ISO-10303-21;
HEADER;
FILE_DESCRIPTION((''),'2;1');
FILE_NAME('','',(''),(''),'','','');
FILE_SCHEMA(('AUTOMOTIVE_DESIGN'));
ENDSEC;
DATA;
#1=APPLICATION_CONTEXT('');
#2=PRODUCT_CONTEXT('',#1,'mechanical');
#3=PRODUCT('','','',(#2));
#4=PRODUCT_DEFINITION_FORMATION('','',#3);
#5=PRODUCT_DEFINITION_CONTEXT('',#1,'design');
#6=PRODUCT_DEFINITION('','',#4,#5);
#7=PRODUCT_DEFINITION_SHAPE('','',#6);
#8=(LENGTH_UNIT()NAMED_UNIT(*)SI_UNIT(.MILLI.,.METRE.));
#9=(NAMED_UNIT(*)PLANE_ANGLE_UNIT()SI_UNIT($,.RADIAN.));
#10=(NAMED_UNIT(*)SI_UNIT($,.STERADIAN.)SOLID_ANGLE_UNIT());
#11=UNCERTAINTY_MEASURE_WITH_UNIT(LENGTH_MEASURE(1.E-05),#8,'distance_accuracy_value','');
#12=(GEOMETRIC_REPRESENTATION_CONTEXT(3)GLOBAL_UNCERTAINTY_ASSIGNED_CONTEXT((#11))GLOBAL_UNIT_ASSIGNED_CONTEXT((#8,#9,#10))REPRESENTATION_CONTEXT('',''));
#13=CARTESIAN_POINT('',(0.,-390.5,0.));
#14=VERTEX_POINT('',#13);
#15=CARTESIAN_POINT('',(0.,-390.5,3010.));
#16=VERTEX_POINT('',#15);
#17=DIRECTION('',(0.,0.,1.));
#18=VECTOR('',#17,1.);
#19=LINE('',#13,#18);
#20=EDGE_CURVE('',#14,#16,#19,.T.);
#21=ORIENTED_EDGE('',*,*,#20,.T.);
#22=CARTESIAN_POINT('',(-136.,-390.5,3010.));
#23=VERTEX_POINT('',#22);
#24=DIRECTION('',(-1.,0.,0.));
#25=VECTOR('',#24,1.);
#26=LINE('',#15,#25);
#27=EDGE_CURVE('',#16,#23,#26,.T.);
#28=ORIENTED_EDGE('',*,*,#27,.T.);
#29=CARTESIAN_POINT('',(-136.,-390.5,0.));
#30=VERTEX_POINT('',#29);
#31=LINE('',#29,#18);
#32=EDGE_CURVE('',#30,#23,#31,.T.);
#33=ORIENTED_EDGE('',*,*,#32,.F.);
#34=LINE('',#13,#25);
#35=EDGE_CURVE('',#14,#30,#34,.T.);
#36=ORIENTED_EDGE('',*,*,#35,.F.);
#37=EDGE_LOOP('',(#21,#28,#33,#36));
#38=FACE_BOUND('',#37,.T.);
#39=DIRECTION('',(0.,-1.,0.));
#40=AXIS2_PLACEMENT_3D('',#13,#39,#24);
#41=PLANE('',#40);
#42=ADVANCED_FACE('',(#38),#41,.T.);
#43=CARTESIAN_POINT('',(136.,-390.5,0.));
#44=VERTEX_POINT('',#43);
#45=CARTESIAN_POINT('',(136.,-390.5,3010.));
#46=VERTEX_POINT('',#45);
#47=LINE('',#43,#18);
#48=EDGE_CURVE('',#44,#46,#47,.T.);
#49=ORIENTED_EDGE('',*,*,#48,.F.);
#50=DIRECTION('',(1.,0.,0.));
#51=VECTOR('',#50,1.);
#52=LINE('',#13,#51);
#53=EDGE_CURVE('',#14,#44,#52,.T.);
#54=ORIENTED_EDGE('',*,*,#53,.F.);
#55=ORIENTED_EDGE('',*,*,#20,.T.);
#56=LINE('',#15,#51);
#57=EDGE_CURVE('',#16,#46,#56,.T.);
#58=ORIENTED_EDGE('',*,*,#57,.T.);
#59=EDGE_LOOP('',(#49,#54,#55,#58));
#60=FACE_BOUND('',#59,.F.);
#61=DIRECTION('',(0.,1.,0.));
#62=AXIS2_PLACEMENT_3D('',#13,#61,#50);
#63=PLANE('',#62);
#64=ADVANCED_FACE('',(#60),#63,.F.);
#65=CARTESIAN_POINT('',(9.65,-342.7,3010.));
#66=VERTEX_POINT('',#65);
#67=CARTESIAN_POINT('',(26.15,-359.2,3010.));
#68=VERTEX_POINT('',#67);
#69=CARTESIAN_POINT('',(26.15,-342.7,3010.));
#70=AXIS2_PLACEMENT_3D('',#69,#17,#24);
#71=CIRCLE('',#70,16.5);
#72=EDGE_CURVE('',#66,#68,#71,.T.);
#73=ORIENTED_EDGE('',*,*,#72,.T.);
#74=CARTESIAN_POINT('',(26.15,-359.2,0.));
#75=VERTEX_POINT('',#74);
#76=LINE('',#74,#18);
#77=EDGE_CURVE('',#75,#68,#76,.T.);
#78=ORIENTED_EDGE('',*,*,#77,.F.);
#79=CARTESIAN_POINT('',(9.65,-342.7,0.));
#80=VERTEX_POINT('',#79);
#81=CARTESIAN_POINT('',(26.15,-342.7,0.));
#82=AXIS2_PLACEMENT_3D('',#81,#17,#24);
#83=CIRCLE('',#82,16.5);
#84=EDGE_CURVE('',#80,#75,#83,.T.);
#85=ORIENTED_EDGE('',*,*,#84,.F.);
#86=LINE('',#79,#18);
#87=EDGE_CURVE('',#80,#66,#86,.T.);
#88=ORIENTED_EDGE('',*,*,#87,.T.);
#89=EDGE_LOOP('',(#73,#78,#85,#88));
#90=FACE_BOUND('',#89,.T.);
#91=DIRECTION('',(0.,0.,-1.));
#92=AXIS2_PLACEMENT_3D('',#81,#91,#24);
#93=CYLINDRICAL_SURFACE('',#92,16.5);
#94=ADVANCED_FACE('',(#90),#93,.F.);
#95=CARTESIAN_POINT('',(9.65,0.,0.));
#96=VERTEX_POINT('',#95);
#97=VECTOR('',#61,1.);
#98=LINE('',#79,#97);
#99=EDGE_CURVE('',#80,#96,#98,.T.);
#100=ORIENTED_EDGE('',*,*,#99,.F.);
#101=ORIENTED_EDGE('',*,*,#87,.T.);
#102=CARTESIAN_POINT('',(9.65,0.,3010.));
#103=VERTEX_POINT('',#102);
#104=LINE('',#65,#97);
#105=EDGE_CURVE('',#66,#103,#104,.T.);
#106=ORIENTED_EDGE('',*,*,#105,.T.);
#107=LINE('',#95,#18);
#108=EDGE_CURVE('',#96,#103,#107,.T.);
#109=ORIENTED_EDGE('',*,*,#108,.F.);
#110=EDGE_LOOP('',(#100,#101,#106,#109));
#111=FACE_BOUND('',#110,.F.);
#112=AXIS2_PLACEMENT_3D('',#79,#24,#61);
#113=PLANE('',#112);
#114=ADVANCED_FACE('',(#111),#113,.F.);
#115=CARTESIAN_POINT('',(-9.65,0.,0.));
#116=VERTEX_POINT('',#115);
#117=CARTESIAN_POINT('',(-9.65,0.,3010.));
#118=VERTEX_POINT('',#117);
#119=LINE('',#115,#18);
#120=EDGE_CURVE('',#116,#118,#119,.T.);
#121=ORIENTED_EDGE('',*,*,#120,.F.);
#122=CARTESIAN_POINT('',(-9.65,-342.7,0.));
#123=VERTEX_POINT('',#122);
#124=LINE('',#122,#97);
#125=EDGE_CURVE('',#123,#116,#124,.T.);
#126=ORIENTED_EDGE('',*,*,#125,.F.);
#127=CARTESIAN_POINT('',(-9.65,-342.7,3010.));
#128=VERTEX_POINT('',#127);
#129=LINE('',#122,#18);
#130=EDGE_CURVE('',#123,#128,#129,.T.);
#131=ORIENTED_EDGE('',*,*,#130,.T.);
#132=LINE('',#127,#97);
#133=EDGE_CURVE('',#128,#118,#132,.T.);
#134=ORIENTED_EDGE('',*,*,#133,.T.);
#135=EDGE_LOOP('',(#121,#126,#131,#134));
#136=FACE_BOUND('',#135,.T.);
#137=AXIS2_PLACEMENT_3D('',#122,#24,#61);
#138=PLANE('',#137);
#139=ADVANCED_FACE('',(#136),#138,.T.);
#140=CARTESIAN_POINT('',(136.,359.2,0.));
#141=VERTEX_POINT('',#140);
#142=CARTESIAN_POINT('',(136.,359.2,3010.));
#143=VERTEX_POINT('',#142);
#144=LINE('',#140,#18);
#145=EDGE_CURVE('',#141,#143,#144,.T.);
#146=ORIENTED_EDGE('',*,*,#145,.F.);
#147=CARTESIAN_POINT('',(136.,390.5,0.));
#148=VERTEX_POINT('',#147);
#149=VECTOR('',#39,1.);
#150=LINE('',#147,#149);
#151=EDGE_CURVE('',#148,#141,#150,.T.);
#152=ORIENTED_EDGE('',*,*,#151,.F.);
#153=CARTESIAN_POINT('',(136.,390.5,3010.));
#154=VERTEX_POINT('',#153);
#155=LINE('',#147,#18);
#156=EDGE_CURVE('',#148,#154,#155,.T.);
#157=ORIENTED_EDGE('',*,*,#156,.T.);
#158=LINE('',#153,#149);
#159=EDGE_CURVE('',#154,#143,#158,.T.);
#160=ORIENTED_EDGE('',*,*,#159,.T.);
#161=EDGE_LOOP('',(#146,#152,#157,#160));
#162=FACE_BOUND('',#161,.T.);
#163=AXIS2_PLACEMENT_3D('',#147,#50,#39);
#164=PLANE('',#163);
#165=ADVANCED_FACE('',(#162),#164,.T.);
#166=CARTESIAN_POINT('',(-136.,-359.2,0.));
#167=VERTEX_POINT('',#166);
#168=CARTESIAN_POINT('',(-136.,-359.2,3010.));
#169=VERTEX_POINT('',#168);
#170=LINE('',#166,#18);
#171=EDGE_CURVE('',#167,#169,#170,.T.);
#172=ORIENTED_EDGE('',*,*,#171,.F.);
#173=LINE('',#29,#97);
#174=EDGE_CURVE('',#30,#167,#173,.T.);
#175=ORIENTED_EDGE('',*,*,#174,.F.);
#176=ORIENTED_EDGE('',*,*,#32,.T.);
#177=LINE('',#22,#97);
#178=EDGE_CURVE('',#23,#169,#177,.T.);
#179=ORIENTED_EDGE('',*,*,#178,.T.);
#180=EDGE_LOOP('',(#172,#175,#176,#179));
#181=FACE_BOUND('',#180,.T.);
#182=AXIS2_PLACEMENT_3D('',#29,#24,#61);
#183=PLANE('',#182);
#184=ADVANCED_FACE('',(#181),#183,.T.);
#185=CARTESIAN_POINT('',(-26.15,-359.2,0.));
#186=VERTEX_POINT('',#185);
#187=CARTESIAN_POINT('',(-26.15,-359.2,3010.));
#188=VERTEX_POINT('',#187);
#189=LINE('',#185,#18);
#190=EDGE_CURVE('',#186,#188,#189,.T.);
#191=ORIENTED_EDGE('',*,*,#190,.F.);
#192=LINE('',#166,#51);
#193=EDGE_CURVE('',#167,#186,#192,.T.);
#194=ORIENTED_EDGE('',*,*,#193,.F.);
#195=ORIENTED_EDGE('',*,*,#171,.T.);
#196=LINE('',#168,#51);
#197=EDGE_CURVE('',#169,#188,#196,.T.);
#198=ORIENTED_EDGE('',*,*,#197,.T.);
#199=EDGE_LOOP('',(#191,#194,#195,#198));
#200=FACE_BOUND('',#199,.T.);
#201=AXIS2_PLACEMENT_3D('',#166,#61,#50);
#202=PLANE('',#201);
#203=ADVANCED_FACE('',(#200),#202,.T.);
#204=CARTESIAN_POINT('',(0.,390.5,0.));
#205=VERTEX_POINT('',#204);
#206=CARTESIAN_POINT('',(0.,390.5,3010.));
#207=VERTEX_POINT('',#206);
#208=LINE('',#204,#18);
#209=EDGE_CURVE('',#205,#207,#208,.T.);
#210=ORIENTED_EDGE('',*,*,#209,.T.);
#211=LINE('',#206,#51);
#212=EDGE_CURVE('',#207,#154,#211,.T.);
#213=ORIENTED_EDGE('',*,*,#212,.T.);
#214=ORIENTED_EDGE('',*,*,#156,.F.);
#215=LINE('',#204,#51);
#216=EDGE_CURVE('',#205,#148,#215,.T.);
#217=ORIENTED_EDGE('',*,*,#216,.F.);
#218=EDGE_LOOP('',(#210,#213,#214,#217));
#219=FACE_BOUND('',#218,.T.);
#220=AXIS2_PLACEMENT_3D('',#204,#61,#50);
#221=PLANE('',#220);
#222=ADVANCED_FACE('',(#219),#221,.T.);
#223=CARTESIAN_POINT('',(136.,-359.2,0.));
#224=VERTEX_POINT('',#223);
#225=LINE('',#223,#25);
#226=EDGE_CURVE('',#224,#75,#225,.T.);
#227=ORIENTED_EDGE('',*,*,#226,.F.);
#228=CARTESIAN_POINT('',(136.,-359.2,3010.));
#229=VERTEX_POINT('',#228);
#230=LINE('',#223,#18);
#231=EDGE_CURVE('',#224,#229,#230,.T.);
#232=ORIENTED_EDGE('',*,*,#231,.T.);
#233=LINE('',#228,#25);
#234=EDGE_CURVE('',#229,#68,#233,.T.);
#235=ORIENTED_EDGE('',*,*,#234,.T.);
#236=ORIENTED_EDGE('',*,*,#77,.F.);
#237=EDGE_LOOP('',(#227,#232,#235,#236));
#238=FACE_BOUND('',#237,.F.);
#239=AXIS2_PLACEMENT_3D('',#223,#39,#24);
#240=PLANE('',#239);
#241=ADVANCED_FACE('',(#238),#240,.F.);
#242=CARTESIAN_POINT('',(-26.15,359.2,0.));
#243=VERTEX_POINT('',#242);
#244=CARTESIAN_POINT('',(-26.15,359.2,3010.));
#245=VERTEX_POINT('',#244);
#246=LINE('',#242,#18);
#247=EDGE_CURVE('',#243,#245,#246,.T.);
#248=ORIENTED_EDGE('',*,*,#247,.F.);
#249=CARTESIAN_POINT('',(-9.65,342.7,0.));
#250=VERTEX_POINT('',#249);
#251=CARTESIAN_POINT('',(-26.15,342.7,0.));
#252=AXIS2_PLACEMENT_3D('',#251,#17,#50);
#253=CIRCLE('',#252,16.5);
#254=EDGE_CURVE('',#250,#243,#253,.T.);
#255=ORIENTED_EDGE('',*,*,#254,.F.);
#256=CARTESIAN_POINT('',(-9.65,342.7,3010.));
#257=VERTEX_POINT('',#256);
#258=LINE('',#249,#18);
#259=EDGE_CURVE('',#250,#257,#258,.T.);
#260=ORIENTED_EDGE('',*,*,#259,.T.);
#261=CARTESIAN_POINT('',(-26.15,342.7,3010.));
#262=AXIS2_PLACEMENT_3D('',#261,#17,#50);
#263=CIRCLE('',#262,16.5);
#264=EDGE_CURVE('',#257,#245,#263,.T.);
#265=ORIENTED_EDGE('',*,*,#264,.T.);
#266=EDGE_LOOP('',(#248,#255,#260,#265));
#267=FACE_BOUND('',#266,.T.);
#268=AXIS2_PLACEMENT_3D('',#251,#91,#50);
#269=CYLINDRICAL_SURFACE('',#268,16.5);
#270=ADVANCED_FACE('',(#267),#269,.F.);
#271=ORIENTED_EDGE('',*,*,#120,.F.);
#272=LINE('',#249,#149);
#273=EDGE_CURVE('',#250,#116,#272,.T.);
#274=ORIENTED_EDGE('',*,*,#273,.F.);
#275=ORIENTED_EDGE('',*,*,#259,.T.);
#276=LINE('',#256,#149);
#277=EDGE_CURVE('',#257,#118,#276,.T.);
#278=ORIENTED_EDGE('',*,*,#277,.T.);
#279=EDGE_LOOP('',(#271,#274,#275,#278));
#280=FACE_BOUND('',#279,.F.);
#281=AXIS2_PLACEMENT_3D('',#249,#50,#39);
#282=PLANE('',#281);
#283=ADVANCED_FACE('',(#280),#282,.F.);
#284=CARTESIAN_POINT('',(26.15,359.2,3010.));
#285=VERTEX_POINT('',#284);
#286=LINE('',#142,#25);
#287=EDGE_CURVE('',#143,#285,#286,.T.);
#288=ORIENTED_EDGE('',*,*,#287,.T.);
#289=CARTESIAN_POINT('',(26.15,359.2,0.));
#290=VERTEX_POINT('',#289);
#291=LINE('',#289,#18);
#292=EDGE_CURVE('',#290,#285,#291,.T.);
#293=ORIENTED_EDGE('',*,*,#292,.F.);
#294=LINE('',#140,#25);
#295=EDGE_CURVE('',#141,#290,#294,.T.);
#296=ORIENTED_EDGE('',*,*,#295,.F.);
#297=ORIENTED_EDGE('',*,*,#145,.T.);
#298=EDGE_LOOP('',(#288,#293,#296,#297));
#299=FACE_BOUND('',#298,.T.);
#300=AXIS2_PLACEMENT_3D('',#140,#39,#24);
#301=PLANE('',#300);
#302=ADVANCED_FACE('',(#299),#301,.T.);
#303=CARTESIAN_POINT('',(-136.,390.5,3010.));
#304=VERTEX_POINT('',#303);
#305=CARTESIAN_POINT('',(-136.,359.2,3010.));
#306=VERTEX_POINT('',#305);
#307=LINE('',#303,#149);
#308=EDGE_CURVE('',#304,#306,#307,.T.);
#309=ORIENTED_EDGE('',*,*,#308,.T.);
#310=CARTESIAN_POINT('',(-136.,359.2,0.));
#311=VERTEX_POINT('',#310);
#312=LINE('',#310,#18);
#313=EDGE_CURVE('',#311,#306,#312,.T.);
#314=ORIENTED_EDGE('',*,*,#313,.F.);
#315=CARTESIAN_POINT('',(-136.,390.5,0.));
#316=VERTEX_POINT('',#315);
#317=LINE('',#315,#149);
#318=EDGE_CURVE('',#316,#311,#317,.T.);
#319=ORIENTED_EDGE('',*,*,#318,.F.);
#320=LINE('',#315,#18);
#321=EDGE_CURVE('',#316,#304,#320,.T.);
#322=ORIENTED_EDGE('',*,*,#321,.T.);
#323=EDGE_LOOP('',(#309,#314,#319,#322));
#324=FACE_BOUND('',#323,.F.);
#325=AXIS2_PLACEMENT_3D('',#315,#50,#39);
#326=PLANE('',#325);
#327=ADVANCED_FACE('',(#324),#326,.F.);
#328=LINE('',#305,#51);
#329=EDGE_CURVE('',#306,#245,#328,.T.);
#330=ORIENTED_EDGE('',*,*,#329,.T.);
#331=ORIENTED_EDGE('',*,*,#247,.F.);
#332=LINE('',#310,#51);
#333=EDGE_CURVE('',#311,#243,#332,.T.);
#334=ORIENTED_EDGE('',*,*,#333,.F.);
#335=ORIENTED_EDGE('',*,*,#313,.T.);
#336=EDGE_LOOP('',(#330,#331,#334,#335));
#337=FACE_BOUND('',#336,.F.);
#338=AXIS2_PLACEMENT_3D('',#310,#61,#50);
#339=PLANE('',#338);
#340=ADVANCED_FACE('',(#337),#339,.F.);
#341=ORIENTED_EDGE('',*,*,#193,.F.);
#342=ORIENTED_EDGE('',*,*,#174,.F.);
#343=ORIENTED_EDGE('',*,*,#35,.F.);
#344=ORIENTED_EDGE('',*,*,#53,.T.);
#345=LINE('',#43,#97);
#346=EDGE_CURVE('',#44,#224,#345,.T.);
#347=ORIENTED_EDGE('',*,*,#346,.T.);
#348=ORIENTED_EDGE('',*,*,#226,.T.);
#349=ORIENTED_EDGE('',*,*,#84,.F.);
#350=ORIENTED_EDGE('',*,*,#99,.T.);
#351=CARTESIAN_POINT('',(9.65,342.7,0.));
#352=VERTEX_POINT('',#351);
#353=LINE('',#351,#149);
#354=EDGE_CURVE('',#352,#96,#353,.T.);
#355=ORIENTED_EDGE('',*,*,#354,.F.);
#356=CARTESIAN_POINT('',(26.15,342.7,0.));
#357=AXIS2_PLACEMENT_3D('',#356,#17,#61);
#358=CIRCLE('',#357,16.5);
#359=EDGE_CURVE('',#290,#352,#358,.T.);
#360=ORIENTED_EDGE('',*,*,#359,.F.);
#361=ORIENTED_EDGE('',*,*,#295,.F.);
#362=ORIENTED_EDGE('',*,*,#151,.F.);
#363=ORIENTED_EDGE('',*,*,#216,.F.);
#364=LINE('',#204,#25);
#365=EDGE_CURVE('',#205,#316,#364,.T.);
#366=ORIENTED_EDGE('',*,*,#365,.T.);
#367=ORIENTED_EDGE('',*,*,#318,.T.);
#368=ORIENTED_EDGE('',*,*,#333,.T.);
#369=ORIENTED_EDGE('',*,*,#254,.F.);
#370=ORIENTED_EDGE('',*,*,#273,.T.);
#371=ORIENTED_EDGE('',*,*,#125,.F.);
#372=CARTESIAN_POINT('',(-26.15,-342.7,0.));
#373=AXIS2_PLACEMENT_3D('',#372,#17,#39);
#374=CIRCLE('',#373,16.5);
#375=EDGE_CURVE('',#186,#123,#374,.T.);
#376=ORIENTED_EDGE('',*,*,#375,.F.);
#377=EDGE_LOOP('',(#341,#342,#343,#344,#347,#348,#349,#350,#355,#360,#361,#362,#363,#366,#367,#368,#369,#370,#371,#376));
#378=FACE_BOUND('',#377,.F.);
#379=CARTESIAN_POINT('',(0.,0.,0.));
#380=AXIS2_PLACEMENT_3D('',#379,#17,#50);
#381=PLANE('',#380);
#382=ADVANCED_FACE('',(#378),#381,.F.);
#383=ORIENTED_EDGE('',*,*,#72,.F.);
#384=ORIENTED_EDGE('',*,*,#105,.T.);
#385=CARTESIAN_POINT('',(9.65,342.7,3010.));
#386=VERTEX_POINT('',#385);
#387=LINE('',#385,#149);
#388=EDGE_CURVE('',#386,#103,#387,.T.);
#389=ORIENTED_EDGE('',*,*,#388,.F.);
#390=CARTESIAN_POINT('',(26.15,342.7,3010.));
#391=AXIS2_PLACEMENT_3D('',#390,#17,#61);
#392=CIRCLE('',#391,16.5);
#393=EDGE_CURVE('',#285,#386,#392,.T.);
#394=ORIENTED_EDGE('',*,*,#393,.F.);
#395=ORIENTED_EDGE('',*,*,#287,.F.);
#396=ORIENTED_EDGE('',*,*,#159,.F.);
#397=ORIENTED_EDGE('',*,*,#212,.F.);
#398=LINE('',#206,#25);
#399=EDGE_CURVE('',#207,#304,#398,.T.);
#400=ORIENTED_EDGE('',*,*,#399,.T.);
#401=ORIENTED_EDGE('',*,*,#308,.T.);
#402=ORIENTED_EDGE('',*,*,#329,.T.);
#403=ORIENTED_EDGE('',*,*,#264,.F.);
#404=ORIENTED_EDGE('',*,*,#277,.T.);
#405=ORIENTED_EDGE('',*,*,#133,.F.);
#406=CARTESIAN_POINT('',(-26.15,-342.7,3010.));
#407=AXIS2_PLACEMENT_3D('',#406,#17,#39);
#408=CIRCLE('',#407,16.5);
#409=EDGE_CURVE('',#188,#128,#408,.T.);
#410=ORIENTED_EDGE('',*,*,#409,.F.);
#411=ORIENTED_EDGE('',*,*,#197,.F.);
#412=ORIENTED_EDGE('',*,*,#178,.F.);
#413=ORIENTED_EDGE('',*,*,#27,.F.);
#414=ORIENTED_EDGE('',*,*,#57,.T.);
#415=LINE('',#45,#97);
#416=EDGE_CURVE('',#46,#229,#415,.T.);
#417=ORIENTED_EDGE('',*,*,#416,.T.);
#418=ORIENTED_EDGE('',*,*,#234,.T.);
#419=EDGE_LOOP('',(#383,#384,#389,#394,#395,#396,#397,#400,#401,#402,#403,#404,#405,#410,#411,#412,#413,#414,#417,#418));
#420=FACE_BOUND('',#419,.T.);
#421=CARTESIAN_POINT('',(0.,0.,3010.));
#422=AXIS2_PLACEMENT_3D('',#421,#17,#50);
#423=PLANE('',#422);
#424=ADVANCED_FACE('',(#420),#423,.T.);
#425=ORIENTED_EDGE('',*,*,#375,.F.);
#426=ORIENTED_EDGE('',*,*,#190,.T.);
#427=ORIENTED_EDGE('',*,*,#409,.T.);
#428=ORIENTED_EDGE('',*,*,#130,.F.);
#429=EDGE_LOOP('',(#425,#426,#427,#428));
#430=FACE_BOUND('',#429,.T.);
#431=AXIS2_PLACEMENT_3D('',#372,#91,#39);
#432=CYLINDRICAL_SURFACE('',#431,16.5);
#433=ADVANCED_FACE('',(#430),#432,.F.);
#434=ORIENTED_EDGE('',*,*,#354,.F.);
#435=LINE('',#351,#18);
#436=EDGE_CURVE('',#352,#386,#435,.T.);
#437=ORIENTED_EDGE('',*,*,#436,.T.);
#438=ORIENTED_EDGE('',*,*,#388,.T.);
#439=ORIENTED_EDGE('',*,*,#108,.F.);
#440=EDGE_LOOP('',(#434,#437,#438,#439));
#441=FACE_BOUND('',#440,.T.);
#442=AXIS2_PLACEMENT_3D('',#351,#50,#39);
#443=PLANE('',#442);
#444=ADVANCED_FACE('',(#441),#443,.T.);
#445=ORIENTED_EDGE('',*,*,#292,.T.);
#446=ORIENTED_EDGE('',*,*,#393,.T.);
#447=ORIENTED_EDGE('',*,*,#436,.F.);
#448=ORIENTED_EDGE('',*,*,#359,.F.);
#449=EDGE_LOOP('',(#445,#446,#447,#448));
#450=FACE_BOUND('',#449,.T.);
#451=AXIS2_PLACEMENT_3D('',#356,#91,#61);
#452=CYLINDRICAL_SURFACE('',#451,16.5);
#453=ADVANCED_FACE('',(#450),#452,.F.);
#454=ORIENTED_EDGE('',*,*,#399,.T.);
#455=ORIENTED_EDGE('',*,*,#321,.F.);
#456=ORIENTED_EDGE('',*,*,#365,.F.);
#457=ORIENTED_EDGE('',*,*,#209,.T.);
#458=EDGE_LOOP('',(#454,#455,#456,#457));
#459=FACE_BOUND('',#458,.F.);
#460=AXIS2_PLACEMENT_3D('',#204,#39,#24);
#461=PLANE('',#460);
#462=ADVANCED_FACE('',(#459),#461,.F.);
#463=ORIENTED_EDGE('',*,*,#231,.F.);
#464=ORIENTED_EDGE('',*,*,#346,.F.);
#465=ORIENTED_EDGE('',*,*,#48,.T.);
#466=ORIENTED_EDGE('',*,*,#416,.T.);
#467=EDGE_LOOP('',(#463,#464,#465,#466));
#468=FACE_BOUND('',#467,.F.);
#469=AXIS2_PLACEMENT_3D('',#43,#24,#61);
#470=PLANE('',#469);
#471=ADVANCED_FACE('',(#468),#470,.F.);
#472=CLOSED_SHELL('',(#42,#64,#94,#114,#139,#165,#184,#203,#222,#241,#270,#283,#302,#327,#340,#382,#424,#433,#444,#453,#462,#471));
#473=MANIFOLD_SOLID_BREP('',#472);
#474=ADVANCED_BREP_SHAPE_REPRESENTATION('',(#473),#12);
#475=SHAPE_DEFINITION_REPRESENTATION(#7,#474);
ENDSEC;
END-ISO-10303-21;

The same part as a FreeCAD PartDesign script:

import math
import FreeCAD as App
import Part
import Sketcher

V = App.Vector
Q = App.Units.Quantity

doc = App.newDocument("Part")
params = doc.addObject("Spreadsheet::Sheet", "Params")
for row, (alias, value) in enumerate([
    ("sketch1_radius", "16.5 mm"),
    ("sketch1_height", "31.3 mm"),
    ("pad1_length", "3010 mm"),
], start=1):
    params.set(f"A{row}", alias)
    params.set(f"B{row}", "=" + value)
    params.setAlias(f"B{row}", alias)

body = doc.addObject("PartDesign::Body", "Body")

# Sketch on XY plane
sketch1 = doc.addObject("Sketcher::SketchObject", "Sketch")
body.addObject(sketch1)
sketch1.AttachmentSupport = (doc.XY_Plane, [""])
sketch1.MapMode = "FlatFace"
sketch1.addGeometry([
    Part.LineSegment(V(-136, -359, 0), V(-136, -390, 0)),  # 0
    Part.LineSegment(V(-136, -390, 0), V(136, -390, 0)),  # 1
    Part.LineSegment(V(136, -390, 0), V(136, -359, 0)),  # 2
    Part.LineSegment(V(136, -359, 0), V(26, -359, 0)),  # 3
    Part.ArcOfCircle(Part.Circle(V(26, -343, 0), V(0, 0, 1), 16), math.radians(180), math.radians(270)),  # 4
    Part.LineSegment(V(10, -343, 0), V(10, 343, 0)),  # 5
    Part.ArcOfCircle(Part.Circle(V(26, 343, 0), V(0, 0, 1), 16), math.radians(90), math.radians(180)),  # 6
    Part.LineSegment(V(26, 359, 0), V(136, 359, 0)),  # 7
    Part.LineSegment(V(136, 359, 0), V(136, 390, 0)),  # 8
    Part.LineSegment(V(136, 390, 0), V(-136, 390, 0)),  # 9
    Part.LineSegment(V(-136, 390, 0), V(-136, 359, 0)),  # 10
    Part.LineSegment(V(-136, 359, 0), V(-26, 359, 0)),  # 11
    Part.ArcOfCircle(Part.Circle(V(-26, 343, 0), V(0, 0, 1), 16), math.radians(0), math.radians(90)),  # 12
    Part.LineSegment(V(-10, 343, 0), V(-10, -343, 0)),  # 13
    Part.ArcOfCircle(Part.Circle(V(-26, -343, 0), V(0, 0, 1), 16), math.radians(-90), math.radians(0)),  # 14
    Part.LineSegment(V(-26, -359, 0), V(-136, -359, 0)),  # 15
], False)
sketch1.addConstraint([
    Sketcher.Constraint("Coincident", 0, 2, 1, 1),
    Sketcher.Constraint("Coincident", 1, 2, 2, 1),
    Sketcher.Constraint("Coincident", 2, 2, 3, 1),
    Sketcher.Constraint("Tangent", 3, 2, 4, 2),
    Sketcher.Constraint("Tangent", 4, 1, 5, 1),
    Sketcher.Constraint("Tangent", 5, 2, 6, 2),
    Sketcher.Constraint("Tangent", 6, 1, 7, 1),
    Sketcher.Constraint("Coincident", 7, 2, 8, 1),
    Sketcher.Constraint("Coincident", 8, 2, 9, 1),
    Sketcher.Constraint("Coincident", 9, 2, 10, 1),
    Sketcher.Constraint("Coincident", 10, 2, 11, 1),
    Sketcher.Constraint("Tangent", 11, 2, 12, 2),
    Sketcher.Constraint("Tangent", 12, 1, 13, 1),
    Sketcher.Constraint("Tangent", 13, 2, 14, 2),
    Sketcher.Constraint("Tangent", 14, 1, 15, 1),
    Sketcher.Constraint("Coincident", 15, 2, 0, 1),
    Sketcher.Constraint("Vertical", 0),
    Sketcher.Constraint("Horizontal", 1),
    Sketcher.Constraint("Vertical", 2),
    Sketcher.Constraint("Horizontal", 3),
    Sketcher.Constraint("Vertical", 5),
    Sketcher.Constraint("Horizontal", 7),
    Sketcher.Constraint("Vertical", 8),
    Sketcher.Constraint("Horizontal", 9),
    Sketcher.Constraint("Vertical", 10),
    Sketcher.Constraint("Horizontal", 11),
    Sketcher.Constraint("Vertical", 13),
    Sketcher.Constraint("Horizontal", 15),
    Sketcher.Constraint("Equal", 4, 6),
    Sketcher.Constraint("Equal", 6, 12),
    Sketcher.Constraint("Equal", 12, 14),
    Sketcher.Constraint("Symmetric", 4, 3, 12, 3, -1, 1),
    Sketcher.Constraint("Symmetric", 0, 2, 8, 2, -1, 1),
    Sketcher.Constraint("Symmetric", 7, 2, 10, 2, -2),
    Sketcher.Constraint("Symmetric", 2, 2, 15, 2, -2),
    Sketcher.Constraint("Radius", 4, Q("16.5 mm")),
    Sketcher.Constraint("DistanceY", 0, 2, 0, 1, Q("31.3 mm")),
    Sketcher.Constraint("DistanceX", 0, 2, -1, 1, Q("136 mm")),
    Sketcher.Constraint("DistanceY", 0, 2, -1, 1, Q("390.5 mm")),
    Sketcher.Constraint("DistanceX", -1, 1, 4, 1, Q("9.65 mm")),
])
sketch1.setExpression("Constraints[35]", "Params.sketch1_radius")
sketch1.setExpression("Constraints[36]", "Params.sketch1_height")
pad1 = doc.addObject("PartDesign::Pad", "Pad")
body.addObject(pad1)
pad1.Profile = sketch1
pad1.setExpression("Length", "Params.pad1_length")

doc.recompute()
